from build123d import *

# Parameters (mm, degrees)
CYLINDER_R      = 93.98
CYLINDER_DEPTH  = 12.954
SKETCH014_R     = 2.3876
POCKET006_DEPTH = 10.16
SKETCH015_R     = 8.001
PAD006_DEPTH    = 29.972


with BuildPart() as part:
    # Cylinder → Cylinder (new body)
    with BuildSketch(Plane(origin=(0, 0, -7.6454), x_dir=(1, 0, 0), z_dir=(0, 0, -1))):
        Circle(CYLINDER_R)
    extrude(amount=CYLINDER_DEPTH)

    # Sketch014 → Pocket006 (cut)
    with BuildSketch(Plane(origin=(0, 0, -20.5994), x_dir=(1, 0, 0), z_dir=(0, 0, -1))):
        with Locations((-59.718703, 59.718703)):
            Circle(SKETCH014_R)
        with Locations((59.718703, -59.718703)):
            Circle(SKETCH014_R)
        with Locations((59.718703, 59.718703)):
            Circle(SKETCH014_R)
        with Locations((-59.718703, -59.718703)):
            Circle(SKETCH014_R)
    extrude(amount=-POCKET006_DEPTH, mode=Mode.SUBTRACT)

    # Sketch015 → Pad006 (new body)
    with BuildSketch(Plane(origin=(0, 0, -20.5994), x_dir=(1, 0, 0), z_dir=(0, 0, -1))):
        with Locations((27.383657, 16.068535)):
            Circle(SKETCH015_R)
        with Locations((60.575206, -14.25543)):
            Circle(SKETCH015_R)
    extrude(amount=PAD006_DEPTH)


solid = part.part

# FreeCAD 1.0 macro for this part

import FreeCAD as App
import Part
import Sketcher
Q = App.Units.Quantity

doc = App.newDocument("Part")
body = doc.addObject("PartDesign::Body", "Body")

sketch1 = body.newObject("Sketcher::SketchObject", "Sketch")
sketch1.AttachmentSupport = (doc.getObject("XY_Plane"), [""])
sketch1.MapMode = "FlatFace"
sketch1.AttachmentOffset = App.Placement(App.Vector(0, 0, -0.301 * 25.4), App.Rotation())
sketch1.addGeometry(Part.Circle(App.Vector(0, 0, 0), App.Vector(0, 0, 1), 94), False)
sketch1.addConstraint(Sketcher.Constraint("Coincident", 0, 3, -1, 1))
sketch1.addConstraint(Sketcher.Constraint("Diameter", 0, Q("7.4 in")))
pad1 = body.newObject("PartDesign::Pad", "Pad")
pad1.Profile = sketch1
pad1.Length = Q("0.51 in")
pad1.Reversed = True

sketch2 = body.newObject("Sketcher::SketchObject", "Sketch001")
sketch2.AttachmentSupport = (doc.getObject("XY_Plane"), [""])
sketch2.MapMode = "FlatFace"
sketch2.AttachmentOffset = App.Placement(App.Vector(0, 0, -0.811 * 25.4), App.Rotation())
sketch2.addGeometry(Part.Circle(App.Vector(-59.7, -59.7, 0), App.Vector(0, 0, 1), 2.4), False)
sketch2.addGeometry(Part.Circle(App.Vector(59.7, 59.7, 0), App.Vector(0, 0, 1), 2.4), False)
sketch2.addGeometry(Part.Circle(App.Vector(59.7, -59.7, 0), App.Vector(0, 0, 1), 2.4), False)
sketch2.addGeometry(Part.Circle(App.Vector(-59.7, 59.7, 0), App.Vector(0, 0, 1), 2.4), False)
sketch2.addConstraint(Sketcher.Constraint("Equal", 0, 1))
sketch2.addConstraint(Sketcher.Constraint("Equal", 1, 2))
sketch2.addConstraint(Sketcher.Constraint("Equal", 2, 3))
sketch2.addConstraint(Sketcher.Constraint("Symmetric", 0, 3, 1, 3, -1, 1))
sketch2.addConstraint(Sketcher.Constraint("Symmetric", 2, 3, 3, 3, -1, 1))
sketch2.addConstraint(Sketcher.Constraint("Symmetric", 0, 3, 2, 3, -2))
sketch2.addConstraint(Sketcher.Constraint("Diameter", 0, Q("0.188 in")))
sketch2.addConstraint(Sketcher.Constraint("DistanceX", 0, 3, -1, 1, 59.718703))
sketch2.addConstraint(Sketcher.Constraint("DistanceY", 0, 3, -1, 1, 59.718703))
pocket1 = body.newObject("PartDesign::Pocket", "Pocket")
pocket1.Profile = sketch2
pocket1.Length = Q("0.4 in")
pocket1.Reversed = True

sketch3 = body.newObject("Sketcher::SketchObject", "Sketch002")
sketch3.AttachmentSupport = (doc.getObject("XY_Plane"), [""])
sketch3.MapMode = "FlatFace"
sketch3.AttachmentOffset = App.Placement(App.Vector(0, 0, -0.811 * 25.4), App.Rotation())
sketch3.addGeometry(Part.Circle(App.Vector(27, -16, 0), App.Vector(0, 0, 1), 8), False)
sketch3.addGeometry(Part.Circle(App.Vector(61, 14, 0), App.Vector(0, 0, 1), 8), False)
sketch3.addConstraint(Sketcher.Constraint("Equal", 0, 1))
sketch3.addConstraint(Sketcher.Constraint("Diameter", 0, Q("0.63 in")))
sketch3.addConstraint(Sketcher.Constraint("DistanceY", -1, 1, 1, 3, 14.25543))
sketch3.addConstraint(Sketcher.Constraint("DistanceX", 0, 3, 1, 3, 33.191549))
sketch3.addConstraint(Sketcher.Constraint("DistanceX", -1, 1, 0, 3, 27.383657))
sketch3.addConstraint(Sketcher.Constraint("DistanceY", 0, 3, -1, 1, 16.068535))
pad2 = body.newObject("PartDesign::Pad", "Pad001")
pad2.Profile = sketch3
pad2.Length = Q("1.18 in")
pad2.Reversed = True

doc.recompute()
